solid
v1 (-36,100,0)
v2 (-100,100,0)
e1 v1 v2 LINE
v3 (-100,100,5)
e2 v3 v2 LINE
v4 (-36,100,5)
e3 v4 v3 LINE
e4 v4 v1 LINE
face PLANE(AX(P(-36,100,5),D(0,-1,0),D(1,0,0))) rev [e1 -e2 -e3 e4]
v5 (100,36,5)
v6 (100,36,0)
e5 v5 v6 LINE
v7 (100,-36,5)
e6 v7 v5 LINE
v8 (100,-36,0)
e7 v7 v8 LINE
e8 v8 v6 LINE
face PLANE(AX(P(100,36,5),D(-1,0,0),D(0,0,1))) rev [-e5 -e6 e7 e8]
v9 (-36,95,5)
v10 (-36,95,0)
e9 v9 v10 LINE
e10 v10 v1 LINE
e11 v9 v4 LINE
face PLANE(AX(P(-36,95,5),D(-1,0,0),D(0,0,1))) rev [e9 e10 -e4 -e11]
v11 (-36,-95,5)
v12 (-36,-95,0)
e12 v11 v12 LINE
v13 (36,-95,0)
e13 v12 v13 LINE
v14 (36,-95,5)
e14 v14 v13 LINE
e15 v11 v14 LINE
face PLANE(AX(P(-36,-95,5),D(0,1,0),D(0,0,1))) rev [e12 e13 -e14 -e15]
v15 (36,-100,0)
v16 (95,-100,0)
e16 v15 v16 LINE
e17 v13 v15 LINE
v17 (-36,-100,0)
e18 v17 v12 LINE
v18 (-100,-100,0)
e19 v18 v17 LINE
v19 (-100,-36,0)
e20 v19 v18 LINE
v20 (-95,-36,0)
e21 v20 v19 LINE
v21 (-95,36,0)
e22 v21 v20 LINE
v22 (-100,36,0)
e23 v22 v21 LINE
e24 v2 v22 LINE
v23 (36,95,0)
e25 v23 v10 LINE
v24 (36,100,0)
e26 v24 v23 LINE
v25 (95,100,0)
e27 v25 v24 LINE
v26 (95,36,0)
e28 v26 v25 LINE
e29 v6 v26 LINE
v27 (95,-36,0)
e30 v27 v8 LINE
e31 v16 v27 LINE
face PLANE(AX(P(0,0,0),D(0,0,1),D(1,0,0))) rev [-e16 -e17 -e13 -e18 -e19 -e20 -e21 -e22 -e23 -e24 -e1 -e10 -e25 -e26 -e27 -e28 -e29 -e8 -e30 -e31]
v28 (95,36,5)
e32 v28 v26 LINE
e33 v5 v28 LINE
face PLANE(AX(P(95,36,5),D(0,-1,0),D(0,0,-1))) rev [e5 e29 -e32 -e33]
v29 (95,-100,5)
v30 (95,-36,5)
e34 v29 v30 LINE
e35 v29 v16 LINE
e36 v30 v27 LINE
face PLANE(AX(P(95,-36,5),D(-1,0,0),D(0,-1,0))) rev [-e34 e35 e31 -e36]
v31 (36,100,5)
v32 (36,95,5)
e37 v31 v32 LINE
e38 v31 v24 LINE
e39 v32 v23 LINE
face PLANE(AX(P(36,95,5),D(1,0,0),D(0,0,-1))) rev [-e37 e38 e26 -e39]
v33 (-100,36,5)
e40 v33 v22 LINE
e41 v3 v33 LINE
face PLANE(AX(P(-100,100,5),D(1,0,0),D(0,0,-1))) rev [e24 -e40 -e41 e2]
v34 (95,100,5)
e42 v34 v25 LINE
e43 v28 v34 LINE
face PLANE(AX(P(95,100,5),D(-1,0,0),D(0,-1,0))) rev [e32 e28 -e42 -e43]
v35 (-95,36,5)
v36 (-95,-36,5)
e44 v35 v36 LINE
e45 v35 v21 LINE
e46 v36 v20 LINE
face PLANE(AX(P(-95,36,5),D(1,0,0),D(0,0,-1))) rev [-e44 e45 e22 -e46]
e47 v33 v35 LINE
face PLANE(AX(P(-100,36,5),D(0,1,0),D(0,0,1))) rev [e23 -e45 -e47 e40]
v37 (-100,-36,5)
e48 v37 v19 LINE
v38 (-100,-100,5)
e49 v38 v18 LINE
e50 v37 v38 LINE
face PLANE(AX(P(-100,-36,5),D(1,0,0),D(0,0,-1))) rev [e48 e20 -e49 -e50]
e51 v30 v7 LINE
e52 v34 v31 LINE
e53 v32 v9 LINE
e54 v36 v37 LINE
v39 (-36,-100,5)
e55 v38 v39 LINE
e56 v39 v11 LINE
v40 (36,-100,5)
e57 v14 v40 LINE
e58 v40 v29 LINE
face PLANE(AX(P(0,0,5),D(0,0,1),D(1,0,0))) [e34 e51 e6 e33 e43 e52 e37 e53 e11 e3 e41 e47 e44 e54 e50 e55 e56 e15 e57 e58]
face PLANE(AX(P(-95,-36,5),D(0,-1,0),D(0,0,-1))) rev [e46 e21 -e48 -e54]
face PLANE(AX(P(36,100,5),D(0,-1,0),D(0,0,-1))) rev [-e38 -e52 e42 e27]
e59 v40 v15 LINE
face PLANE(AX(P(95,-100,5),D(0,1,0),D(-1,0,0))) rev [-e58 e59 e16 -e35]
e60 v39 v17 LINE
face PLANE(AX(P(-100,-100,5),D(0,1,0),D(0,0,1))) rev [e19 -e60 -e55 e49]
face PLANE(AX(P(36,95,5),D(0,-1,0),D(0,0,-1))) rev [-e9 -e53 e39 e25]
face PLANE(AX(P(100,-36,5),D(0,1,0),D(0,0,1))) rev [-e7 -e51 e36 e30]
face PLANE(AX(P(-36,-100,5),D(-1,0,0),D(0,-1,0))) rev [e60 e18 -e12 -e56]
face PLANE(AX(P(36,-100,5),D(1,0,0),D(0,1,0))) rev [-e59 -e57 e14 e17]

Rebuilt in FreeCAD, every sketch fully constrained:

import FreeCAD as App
import Part
import Sketcher


def add_polygon(sketch, points):
    """Adds a closed chain of lines whose ends are joined by coincident constraints."""
    first, n = sketch.GeometryCount, len(points)
    for a, b in zip(points, points[1:] + points[:1]):
        sketch.addGeometry(Part.LineSegment(App.Vector(*a, 0), App.Vector(*b, 0)), False)
    for i in range(n):
        sketch.addConstraint(Sketcher.Constraint("Coincident", first + i, 2, first + (i + 1) % n, 1))

doc = App.newDocument("Part")
params = doc.addObject("Spreadsheet::Sheet", "Params")
for row, (alias, value) in enumerate([
    ("sketch1_width", "72 mm"),
    ("sketch1_width2", "64 mm"),
    ("sketch1_width3", "5 mm"),
    ("pad1_length", "5 mm"),
], start=1):
    params.set(f"A{row}", alias)
    params.set(f"B{row}", "=" + value)
    params.setAlias(f"B{row}", alias)

body = doc.addObject("PartDesign::Body", "Body")

sketch1 = doc.addObject("Sketcher::SketchObject", "Sketch")
body.addObject(sketch1)
sketch1.AttachmentSupport = (doc.XY_Plane, [""])
sketch1.MapMode = "FlatFace"
add_polygon(sketch1, [(36, 95), (-36, 95), (-36, 100), (-100, 100), (-100, 36), (-95, 36), (-95, -36), (-100, -36), (-100, -100), (-36, -100), (-36, -95), (36, -95), (36, -100), (95, -100), (95, -36), (100, -36), (100, 36), (95, 36), (95, 100), (36, 100)])
sketch1.addConstraint([
    Sketcher.Constraint("Horizontal", 0),
    Sketcher.Constraint("Vertical", 1),
    Sketcher.Constraint("Horizontal", 2),
    Sketcher.Constraint("Vertical", 3),
    Sketcher.Constraint("Horizontal", 4),
    Sketcher.Constraint("Vertical", 5),
    Sketcher.Constraint("Horizontal", 6),
    Sketcher.Constraint("Vertical", 7),
    Sketcher.Constraint("Horizontal", 8),
    Sketcher.Constraint("Vertical", 9),
    Sketcher.Constraint("Horizontal", 10),
    Sketcher.Constraint("Vertical", 11),
    Sketcher.Constraint("Horizontal", 12),
    Sketcher.Constraint("Vertical", 13),
    Sketcher.Constraint("Horizontal", 14),
    Sketcher.Constraint("Vertical", 15),
    Sketcher.Constraint("Horizontal", 16),
    Sketcher.Constraint("Vertical", 17),
    Sketcher.Constraint("Horizontal", 18),
    Sketcher.Constraint("Vertical", 19),
    Sketcher.Constraint("Symmetric", 0, 2, 10, 2, -1, 1),
    Sketcher.Constraint("Symmetric", 4, 2, 13, 2, -1, 1),
    Sketcher.Constraint("Symmetric", 6, 2, 15, 2, -1, 1),
    Sketcher.Constraint("Symmetric", 8, 2, 18, 2, -1, 1),
    Sketcher.Constraint("Symmetric", 8, 2, 11, 2, -2),
    Sketcher.Constraint("Symmetric", 3, 2, 15, 2, -2),
    Sketcher.Constraint("Horizontal", 2, 2, 17, 2),
    Sketcher.Constraint("Vertical", 13, 2, 16, 2),
    Sketcher.Constraint("Equal", 16, 1),
    Sketcher.Constraint("Equal", 8, 3),
    Sketcher.Constraint("Equal", 10, 5),
    Sketcher.Constraint("DistanceX", 0, 2, 0, 1, 72.0),
    Sketcher.Constraint("DistanceX", 2, 2, 2, 1, 64.0),
    Sketcher.Constraint("DistanceX", 4, 1, 4, 2, 5.0),
])
sketch1.setExpression("Constraints[51]", "Params.sketch1_width")
sketch1.setExpression("Constraints[52]", "Params.sketch1_width2")
sketch1.setExpression("Constraints[53]", "Params.sketch1_width3")
pad1 = doc.addObject("PartDesign::Pad", "Pad")
body.addObject(pad1)
pad1.Profile = sketch1
pad1.setExpression("Length", "Params.pad1_length")

doc.recompute()
